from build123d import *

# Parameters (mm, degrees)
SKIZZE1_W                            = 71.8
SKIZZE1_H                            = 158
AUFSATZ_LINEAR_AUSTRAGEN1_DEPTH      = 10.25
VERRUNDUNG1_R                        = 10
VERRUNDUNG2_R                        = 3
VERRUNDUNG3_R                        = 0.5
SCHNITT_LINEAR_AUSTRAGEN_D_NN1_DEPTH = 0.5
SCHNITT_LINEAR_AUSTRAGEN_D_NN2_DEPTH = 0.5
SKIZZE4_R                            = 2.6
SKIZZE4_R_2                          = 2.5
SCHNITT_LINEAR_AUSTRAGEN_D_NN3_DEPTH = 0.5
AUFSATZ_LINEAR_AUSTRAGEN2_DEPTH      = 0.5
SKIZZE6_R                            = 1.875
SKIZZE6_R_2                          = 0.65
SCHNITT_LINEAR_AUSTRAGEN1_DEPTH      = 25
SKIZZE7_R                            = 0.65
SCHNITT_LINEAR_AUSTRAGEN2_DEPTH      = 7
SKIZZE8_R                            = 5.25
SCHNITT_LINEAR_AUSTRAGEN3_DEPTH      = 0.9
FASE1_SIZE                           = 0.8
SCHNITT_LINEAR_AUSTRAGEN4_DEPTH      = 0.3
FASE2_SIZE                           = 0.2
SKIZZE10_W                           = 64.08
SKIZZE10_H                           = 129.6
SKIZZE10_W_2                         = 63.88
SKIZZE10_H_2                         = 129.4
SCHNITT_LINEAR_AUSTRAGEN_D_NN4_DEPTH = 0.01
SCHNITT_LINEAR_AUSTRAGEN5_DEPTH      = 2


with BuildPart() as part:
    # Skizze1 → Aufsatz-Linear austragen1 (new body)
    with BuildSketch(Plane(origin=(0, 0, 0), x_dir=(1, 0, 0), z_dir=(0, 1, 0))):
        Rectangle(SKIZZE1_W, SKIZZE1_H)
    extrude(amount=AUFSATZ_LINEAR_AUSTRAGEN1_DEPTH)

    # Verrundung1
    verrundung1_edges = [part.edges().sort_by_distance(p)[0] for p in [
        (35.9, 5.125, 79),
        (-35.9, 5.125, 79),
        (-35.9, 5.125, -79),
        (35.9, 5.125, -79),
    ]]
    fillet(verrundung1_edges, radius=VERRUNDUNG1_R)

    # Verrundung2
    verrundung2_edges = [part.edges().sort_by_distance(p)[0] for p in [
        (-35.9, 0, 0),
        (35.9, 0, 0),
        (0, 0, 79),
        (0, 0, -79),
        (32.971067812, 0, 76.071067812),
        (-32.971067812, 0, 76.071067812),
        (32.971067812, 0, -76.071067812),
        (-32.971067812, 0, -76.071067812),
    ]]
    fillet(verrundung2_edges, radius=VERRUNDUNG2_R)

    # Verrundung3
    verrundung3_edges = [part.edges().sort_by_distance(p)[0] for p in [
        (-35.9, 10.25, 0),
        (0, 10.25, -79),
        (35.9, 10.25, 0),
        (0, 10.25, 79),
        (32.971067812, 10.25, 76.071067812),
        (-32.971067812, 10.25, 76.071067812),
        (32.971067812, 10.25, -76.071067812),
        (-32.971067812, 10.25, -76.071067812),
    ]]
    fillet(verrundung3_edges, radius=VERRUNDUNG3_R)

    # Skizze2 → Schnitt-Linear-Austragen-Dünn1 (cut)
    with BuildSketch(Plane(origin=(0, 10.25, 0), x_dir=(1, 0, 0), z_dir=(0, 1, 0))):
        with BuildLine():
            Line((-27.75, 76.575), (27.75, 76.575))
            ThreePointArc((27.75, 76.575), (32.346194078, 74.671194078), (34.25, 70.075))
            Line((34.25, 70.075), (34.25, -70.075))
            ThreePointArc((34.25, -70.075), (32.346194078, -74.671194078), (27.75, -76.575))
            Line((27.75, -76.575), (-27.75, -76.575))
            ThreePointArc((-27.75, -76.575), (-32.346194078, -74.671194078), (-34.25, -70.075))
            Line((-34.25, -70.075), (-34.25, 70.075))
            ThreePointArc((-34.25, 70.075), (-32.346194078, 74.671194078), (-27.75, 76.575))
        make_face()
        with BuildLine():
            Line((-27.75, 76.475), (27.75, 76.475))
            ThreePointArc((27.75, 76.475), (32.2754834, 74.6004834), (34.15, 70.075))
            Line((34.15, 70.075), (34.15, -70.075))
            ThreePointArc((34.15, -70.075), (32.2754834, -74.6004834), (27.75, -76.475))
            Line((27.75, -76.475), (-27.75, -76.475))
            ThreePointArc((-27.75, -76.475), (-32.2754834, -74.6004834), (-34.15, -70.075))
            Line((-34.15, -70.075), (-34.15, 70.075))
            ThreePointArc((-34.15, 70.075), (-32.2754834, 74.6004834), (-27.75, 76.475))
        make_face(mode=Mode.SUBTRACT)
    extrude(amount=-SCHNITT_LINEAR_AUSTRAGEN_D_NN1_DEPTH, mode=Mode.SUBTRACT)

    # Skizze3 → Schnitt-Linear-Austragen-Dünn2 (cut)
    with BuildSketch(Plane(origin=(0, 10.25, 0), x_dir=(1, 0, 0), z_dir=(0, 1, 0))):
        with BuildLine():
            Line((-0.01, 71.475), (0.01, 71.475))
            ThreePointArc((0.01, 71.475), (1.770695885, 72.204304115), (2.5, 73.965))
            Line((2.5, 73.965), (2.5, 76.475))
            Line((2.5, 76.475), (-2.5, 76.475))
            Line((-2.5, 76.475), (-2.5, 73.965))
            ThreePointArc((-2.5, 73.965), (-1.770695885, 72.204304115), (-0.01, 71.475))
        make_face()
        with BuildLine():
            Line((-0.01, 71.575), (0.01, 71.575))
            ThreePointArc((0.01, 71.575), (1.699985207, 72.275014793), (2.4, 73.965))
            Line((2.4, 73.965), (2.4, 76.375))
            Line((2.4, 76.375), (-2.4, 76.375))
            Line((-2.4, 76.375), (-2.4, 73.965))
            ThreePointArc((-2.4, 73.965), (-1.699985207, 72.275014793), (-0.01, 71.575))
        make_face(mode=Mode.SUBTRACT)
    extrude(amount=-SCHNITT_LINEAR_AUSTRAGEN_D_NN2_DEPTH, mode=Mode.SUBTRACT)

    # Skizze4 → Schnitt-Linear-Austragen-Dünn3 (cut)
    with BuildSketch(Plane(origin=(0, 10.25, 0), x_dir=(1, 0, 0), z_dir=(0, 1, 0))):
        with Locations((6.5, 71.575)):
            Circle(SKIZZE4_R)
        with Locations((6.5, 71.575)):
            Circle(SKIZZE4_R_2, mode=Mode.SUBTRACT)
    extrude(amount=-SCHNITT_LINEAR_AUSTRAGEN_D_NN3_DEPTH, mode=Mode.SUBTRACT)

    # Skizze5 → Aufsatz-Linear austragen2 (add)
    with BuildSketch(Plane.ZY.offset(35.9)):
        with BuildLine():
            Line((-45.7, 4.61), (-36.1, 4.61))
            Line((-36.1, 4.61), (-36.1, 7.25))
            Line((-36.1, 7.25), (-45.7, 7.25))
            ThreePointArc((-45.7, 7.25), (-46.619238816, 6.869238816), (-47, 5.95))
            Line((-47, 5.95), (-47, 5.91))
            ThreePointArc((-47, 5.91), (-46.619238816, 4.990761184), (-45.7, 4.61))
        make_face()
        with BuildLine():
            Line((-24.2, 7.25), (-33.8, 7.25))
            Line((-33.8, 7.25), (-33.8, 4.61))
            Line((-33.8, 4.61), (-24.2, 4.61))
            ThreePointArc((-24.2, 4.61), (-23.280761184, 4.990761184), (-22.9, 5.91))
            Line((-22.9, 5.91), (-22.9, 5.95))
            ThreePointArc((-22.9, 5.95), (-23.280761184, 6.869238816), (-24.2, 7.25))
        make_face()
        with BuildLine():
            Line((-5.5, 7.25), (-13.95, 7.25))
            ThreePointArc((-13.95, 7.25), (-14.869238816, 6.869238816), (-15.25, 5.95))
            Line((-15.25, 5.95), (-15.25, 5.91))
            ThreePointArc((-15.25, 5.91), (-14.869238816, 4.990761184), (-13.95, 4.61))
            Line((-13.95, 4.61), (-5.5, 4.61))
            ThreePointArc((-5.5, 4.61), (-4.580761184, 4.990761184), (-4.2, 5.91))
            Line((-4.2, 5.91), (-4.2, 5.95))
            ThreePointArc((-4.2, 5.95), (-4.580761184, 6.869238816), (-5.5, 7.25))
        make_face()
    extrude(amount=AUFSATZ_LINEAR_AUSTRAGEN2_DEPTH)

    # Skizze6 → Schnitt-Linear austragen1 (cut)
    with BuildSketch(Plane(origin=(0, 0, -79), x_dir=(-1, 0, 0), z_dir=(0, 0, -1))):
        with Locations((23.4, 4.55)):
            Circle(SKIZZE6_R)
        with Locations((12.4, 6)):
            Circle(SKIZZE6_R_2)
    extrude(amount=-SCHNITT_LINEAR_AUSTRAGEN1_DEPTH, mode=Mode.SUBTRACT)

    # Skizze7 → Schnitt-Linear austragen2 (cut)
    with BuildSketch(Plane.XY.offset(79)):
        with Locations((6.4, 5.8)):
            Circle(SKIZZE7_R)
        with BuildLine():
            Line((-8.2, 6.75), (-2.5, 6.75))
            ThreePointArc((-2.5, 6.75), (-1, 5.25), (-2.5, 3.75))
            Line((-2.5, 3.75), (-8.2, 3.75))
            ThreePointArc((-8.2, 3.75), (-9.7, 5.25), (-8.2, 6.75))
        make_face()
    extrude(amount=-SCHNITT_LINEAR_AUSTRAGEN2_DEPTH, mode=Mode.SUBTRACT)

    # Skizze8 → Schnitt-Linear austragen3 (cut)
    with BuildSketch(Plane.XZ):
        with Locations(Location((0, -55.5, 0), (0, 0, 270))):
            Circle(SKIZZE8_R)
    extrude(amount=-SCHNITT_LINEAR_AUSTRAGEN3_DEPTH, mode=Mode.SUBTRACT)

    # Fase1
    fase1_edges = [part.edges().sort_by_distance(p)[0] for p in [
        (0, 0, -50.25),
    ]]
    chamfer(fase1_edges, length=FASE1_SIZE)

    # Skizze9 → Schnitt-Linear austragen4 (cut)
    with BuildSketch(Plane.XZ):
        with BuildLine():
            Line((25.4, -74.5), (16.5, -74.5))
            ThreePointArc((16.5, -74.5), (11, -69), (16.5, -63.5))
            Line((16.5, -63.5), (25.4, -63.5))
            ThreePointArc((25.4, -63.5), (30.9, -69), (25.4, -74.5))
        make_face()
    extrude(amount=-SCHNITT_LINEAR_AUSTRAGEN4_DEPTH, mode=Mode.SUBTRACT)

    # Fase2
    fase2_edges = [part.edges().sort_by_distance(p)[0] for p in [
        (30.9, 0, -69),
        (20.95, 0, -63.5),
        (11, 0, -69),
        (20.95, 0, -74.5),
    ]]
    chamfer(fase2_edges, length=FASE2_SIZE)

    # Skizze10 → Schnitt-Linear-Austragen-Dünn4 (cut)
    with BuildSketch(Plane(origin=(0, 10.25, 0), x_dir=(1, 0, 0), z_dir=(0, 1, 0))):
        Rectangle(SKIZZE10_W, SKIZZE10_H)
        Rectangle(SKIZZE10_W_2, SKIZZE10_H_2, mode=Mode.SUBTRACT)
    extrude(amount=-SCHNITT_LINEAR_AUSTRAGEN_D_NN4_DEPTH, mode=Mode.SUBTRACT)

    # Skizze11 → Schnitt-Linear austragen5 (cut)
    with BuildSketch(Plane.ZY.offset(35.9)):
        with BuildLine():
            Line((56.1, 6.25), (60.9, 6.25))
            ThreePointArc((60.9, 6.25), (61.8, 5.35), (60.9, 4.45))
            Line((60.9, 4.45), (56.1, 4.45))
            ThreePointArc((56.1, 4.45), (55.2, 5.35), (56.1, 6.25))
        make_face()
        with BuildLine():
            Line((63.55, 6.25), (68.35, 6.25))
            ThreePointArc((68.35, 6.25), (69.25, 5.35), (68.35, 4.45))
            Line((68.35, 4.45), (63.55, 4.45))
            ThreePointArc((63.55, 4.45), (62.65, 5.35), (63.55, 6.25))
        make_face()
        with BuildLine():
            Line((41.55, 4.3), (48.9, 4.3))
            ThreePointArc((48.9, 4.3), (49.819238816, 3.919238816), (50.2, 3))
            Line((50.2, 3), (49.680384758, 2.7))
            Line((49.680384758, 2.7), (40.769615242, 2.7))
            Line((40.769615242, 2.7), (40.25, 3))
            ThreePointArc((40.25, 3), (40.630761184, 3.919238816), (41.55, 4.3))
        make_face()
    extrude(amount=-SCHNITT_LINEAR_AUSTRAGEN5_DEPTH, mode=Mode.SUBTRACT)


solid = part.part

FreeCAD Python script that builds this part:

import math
import FreeCAD as App
import Part
import Sketcher

V = App.Vector
Q = App.Units.Quantity


def edges_at(feature, points):
    """Names of the edges that pass closest to the given points."""
    edges = feature.Shape.Edges
    near = lambda p: min(range(len(edges)), key=lambda i: edges[i].distToShape(Part.Vertex(*p))[0])
    return sorted({f"Edge{near(p) + 1}" for p in points})


def add_polygon(sketch, points):
    """Adds a closed chain of lines whose ends are joined by coincident constraints."""
    first, n = sketch.GeometryCount, len(points)
    for a, b in zip(points, points[1:] + points[:1]):
        sketch.addGeometry(Part.LineSegment(App.Vector(*a, 0), App.Vector(*b, 0)), False)
    for i in range(n):
        sketch.addConstraint(Sketcher.Constraint("Coincident", first + i, 2, first + (i + 1) % n, 1))

doc = App.newDocument("Part")
body = doc.addObject("PartDesign::Body", "Body")

# Sketch on XZ plane
sketch1 = doc.addObject("Sketcher::SketchObject", "Sketch")
body.addObject(sketch1)
sketch1.AttachmentSupport = (doc.XZ_Plane, [""])
sketch1.MapMode = "FlatFace"
add_polygon(sketch1, [(-36, -79), (-36, 79), (36, 79), (36, -79)])  # lines 0-3
sketch1.addConstraint(Sketcher.Constraint("Vertical", 0))
sketch1.addConstraint(Sketcher.Constraint("Horizontal", 1))
sketch1.addConstraint(Sketcher.Constraint("Vertical", 2))
sketch1.addConstraint(Sketcher.Constraint("Horizontal", 3))
sketch1.addConstraint(Sketcher.Constraint("Symmetric", 0, 2, 2, 2, -1, 1))
sketch1.addConstraint(Sketcher.Constraint("DistanceY", 0, 1, 0, 2, 158.0))
sketch1.addConstraint(Sketcher.Constraint("DistanceX", 1, 1, 1, 2, 71.8))
pad1 = doc.addObject("PartDesign::Pad", "Pad")
body.addObject(pad1)
pad1.Profile = sketch1
pad1.Length = 10.25
pad1.Reversed = True
doc.recompute()

fillet = doc.addObject("PartDesign::Fillet", "Fillet")
body.addObject(fillet)
fillet.Base = (pad1, edges_at(pad1, [
    (35.9, 5.125, 79),
    (-35.9, 5.125, 79),
    (-35.9, 5.125, -79),
    (35.9, 5.125, -79),
]))
fillet.Radius = 10
doc.recompute()

fillet2 = doc.addObject("PartDesign::Fillet", "Fillet001")
body.addObject(fillet2)
fillet2.Base = (fillet, edges_at(fillet, [
    (-35.9, 0, 0),
    (35.9, 0, 0),
    (0, 0, 79),
    (0, 0, -79),
    (32.971, 0, 76.071),
    (-32.971, 0, 76.071),
    (32.971, 0, -76.071),
    (-32.971, 0, -76.071),
]))
fillet2.Radius = 3
doc.recompute()

fillet3 = doc.addObject("PartDesign::Fillet", "Fillet002")
body.addObject(fillet3)
fillet3.Base = (fillet2, edges_at(fillet2, [
    (-35.9, 10.25, 0),
    (0, 10.25, -79),
    (35.9, 10.25, 0),
    (0, 10.25, 79),
    (32.971, 10.25, 76.071),
    (-32.971, 10.25, 76.071),
    (32.971, 10.25, -76.071),
    (-32.971, 10.25, -76.071),
]))
fillet3.Radius = 0.5

# Sketch on XZ plane
sketch2 = doc.addObject("Sketcher::SketchObject", "Sketch001")
body.addObject(sketch2)
sketch2.AttachmentSupport = (doc.XZ_Plane, [""])
sketch2.MapMode = "FlatFace"
sketch2.AttachmentOffset = App.Placement(V(0, 0, -10.25), App.Rotation())
sketch2.addGeometry(Part.LineSegment(V(28, -77, 0), V(-28, -77, 0)), False)
sketch2.addGeometry(Part.ArcOfCircle(Part.Circle(V(-28, -70, 0), V(0, 0, 1), 6), math.radians(180), math.radians(270)), False)
sketch2.addGeometry(Part.LineSegment(V(-34, -70, 0), V(-34, 70, 0)), False)
sketch2.addGeometry(Part.ArcOfCircle(Part.Circle(V(-28, 70, 0), V(0, 0, 1), 6), math.radians(90), math.radians(180)), False)
sketch2.addGeometry(Part.LineSegment(V(-28, 77, 0), V(28, 77, 0)), False)
sketch2.addGeometry(Part.ArcOfCircle(Part.Circle(V(28, 70, 0), V(0, 0, 1), 6), math.radians(0), math.radians(90)), False)
sketch2.addGeometry(Part.LineSegment(V(34, 70, 0), V(34, -70, 0)), False)
sketch2.addGeometry(Part.ArcOfCircle(Part.Circle(V(28, -70, 0), V(0, 0, 1), 6), math.radians(-90), math.radians(0)), False)
sketch2.addGeometry(Part.LineSegment(V(-28, -76, 0), V(28, -76, 0)), False)
sketch2.addGeometry(Part.ArcOfCircle(Part.Circle(V(28, -70, 0), V(0, 0, 1), 6), math.radians(-90), math.radians(0)), False)
sketch2.addGeometry(Part.LineSegment(V(34, -70, 0), V(34, 70, 0)), False)
sketch2.addGeometry(Part.ArcOfCircle(Part.Circle(V(28, 70, 0), V(0, 0, 1), 6), math.radians(0), math.radians(90)), False)
sketch2.addGeometry(Part.LineSegment(V(28, 76, 0), V(-28, 76, 0)), False)
sketch2.addGeometry(Part.ArcOfCircle(Part.Circle(V(-28, 70, 0), V(0, 0, 1), 6), math.radians(90), math.radians(180)), False)
sketch2.addGeometry(Part.LineSegment(V(-34, 70, 0), V(-34, -70, 0)), False)
sketch2.addGeometry(Part.ArcOfCircle(Part.Circle(V(-28, -70, 0), V(0, 0, 1), 6), math.radians(180), math.radians(270)), False)
sketch2.addConstraint(Sketcher.Constraint("Tangent", 0, 2, 1, 2))
sketch2.addConstraint(Sketcher.Constraint("Tangent", 1, 1, 2, 1))
sketch2.addConstraint(Sketcher.Constraint("Tangent", 2, 2, 3, 2))
sketch2.addConstraint(Sketcher.Constraint("Tangent", 3, 1, 4, 1))
sketch2.addConstraint(Sketcher.Constraint("Tangent", 4, 2, 5, 2))
sketch2.addConstraint(Sketcher.Constraint("Tangent", 5, 1, 6, 1))
sketch2.addConstraint(Sketcher.Constraint("Tangent", 6, 2, 7, 2))
sketch2.addConstraint(Sketcher.Constraint("Tangent", 7, 1, 0, 1))
sketch2.addConstraint(Sketcher.Constraint("Tangent", 8, 2, 9, 1))
sketch2.addConstraint(Sketcher.Constraint("Tangent", 9, 2, 10, 1))
sketch2.addConstraint(Sketcher.Constraint("Tangent", 10, 2, 11, 1))
sketch2.addConstraint(Sketcher.Constraint("Tangent", 11, 2, 12, 1))
sketch2.addConstraint(Sketcher.Constraint("Tangent", 12, 2, 13, 1))
sketch2.addConstraint(Sketcher.Constraint("Tangent", 13, 2, 14, 1))
sketch2.addConstraint(Sketcher.Constraint("Tangent", 14, 2, 15, 1))
sketch2.addConstraint(Sketcher.Constraint("Tangent", 15, 2, 8, 1))
sketch2.addConstraint(Sketcher.Constraint("Horizontal", 0))
sketch2.addConstraint(Sketcher.Constraint("Vertical", 2))
sketch2.addConstraint(Sketcher.Constraint("Horizontal", 4))
sketch2.addConstraint(Sketcher.Constraint("Vertical", 6))
sketch2.addConstraint(Sketcher.Constraint("Horizontal", 8))
sketch2.addConstraint(Sketcher.Constraint("Vertical", 10))
sketch2.addConstraint(Sketcher.Constraint("Horizontal", 12))
sketch2.addConstraint(Sketcher.Constraint("Vertical", 14))
sketch2.addConstraint(Sketcher.Constraint("Coincident", 9, 3, 7, 3))
sketch2.addConstraint(Sketcher.Constraint("Coincident", 11, 3, 5, 3))
sketch2.addConstraint(Sketcher.Constraint("Coincident", 13, 3, 3, 3))
sketch2.addConstraint(Sketcher.Constraint("Equal", 1, 3))
sketch2.addConstraint(Sketcher.Constraint("Equal", 3, 5))
sketch2.addConstraint(Sketcher.Constraint("Equal", 5, 7))
sketch2.addConstraint(Sketcher.Constraint("Equal", 13, 15))
sketch2.addConstraint(Sketcher.Constraint("Symmetric", 1, 3, 5, 3, -1, 1))
sketch2.addConstraint(Sketcher.Constraint("Radius", 1, 6.5))
sketch2.addConstraint(Sketcher.Constraint("Radius", 9, 6.4))
sketch2.addConstraint(Sketcher.Constraint("DistanceX", 0, 2, 0, 1, 55.5))
sketch2.addConstraint(Sketcher.Constraint("DistanceY", 2, 1, 2, 2, 140.15))
pocket1 = doc.addObject("PartDesign::Pocket", "Pocket")
body.addObject(pocket1)
pocket1.Profile = sketch2
pocket1.Length = 0.5
pocket1.Reversed = True

# Sketch on XZ plane
sketch3 = doc.addObject("Sketcher::SketchObject", "Sketch002")
body.addObject(sketch3)
sketch3.AttachmentSupport = (doc.XZ_Plane, [""])
sketch3.MapMode = "FlatFace"
sketch3.AttachmentOffset = App.Placement(V(0, 0, -10.25), App.Rotation())
sketch3.addGeometry(Part.LineSegment(V(-0.01, -71.475, 0), V(0.01, -71.475, 0)), False)
sketch3.addGeometry(Part.ArcOfCircle(Part.Circle(V(0.01, -73.965, 0), V(0, 0, 1), 2.49), math.radians(0), math.radians(90)), False)
sketch3.addGeometry(Part.LineSegment(V(2.5, -73.965, 0), V(2.5, -76.475, 0)), False)
sketch3.addGeometry(Part.LineSegment(V(2.5, -76.475, 0), V(-2.5, -76.475, 0)), False)
sketch3.addGeometry(Part.LineSegment(V(-2.5, -76.475, 0), V(-2.5, -73.965, 0)), False)
sketch3.addGeometry(Part.ArcOfCircle(Part.Circle(V(-0.01, -73.965, 0), V(0, 0, 1), 2.49), math.radians(90), math.radians(180)), False)
sketch3.addGeometry(Part.LineSegment(V(0.01, -71.575, 0), V(-0.01, -71.575, 0)), False)
sketch3.addGeometry(Part.ArcOfCircle(Part.Circle(V(-0.01, -73.965, 0), V(0, 0, 1), 2.39), math.radians(90), math.radians(180)), False)
sketch3.addGeometry(Part.LineSegment(V(-2.4, -73.965, 0), V(-2.4, -76.375, 0)), False)
sketch3.addGeometry(Part.LineSegment(V(-2.4, -76.375, 0), V(2.4, -76.375, 0)), False)
sketch3.addGeometry(Part.LineSegment(V(2.4, -76.375, 0), V(2.4, -73.965, 0)), False)
sketch3.addGeometry(Part.ArcOfCircle(Part.Circle(V(0.01, -73.965, 0), V(0, 0, 1), 2.39), math.radians(0), math.radians(90)), False)
sketch3.addConstraint(Sketcher.Constraint("Tangent", 0, 2, 1, 2))
sketch3.addConstraint(Sketcher.Constraint("Tangent", 1, 1, 2, 1))
sketch3.addConstraint(Sketcher.Constraint("Coincident", 2, 2, 3, 1))
sketch3.addConstraint(Sketcher.Constraint("Coincident", 3, 2, 4, 1))
sketch3.addConstraint(Sketcher.Constraint("Tangent", 4, 2, 5, 2))
sketch3.addConstraint(Sketcher.Constraint("Tangent", 5, 1, 0, 1))
sketch3.addConstraint(Sketcher.Constraint("Tangent", 6, 2, 7, 1))
sketch3.addConstraint(Sketcher.Constraint("Tangent", 7, 2, 8, 1))
sketch3.addConstraint(Sketcher.Constraint("Coincident", 8, 2, 9, 1))
sketch3.addConstraint(Sketcher.Constraint("Coincident", 9, 2, 10, 1))
sketch3.addConstraint(Sketcher.Constraint("Tangent", 10, 2, 11, 1))
sketch3.addConstraint(Sketcher.Constraint("Tangent", 11, 2, 6, 1))
sketch3.addConstraint(Sketcher.Constraint("Horizontal", 0))
sketch3.addConstraint(Sketcher.Constraint("Vertical", 2))
sketch3.addConstraint(Sketcher.Constraint("Horizontal", 3))
sketch3.addConstraint(Sketcher.Constraint("Vertical", 4))
sketch3.addConstraint(Sketcher.Constraint("Horizontal", 6))
sketch3.addConstraint(Sketcher.Constraint("Vertical", 8))
sketch3.addConstraint(Sketcher.Constraint("Horizontal", 9))
sketch3.addConstraint(Sketcher.Constraint("Vertical", 10))
sketch3.addConstraint(Sketcher.Constraint("Coincident", 7, 3, 5, 3))
sketch3.addConstraint(Sketcher.Constraint("Coincident", 11, 3, 1, 3))
sketch3.addConstraint(Sketcher.Constraint("Equal", 1, 5))
sketch3.addConstraint(Sketcher.Constraint("DistanceX", 3, 2, 3, 1, 5.0))
sketch3.addConstraint(Sketcher.Constraint("Radius", 1, 2.49))
sketch3.addConstraint(Sketcher.Constraint("Radius", 7, 2.39))
sketch3.addConstraint(Sketcher.Constraint("DistanceY", 2, 2, 2, 1, 2.51))
sketch3.addConstraint(Sketcher.Constraint("DistanceY", 8, 2, 8, 1, 2.41))
sketch3.addConstraint(Sketcher.Constraint("DistanceX", -1, 1, 1, 1, 2.5))
sketch3.addConstraint(Sketcher.Constraint("DistanceY", 1, 3, -1, 1, 73.965))
pocket2 = doc.addObject("PartDesign::Pocket", "Pocket001")
body.addObject(pocket2)
pocket2.Profile = sketch3
pocket2.Length = 0.5
pocket2.Reversed = True

# Sketch on XZ plane
sketch4 = doc.addObject("Sketcher::SketchObject", "Sketch003")
body.addObject(sketch4)
sketch4.AttachmentSupport = (doc.XZ_Plane, [""])
sketch4.MapMode = "FlatFace"
sketch4.AttachmentOffset = App.Placement(V(0, 0, -10.25), App.Rotation())
sketch4.addGeometry(Part.Circle(V(6.5, -71.6, 0), V(0, 0, 1), 2.6), False)
sketch4.addGeometry(Part.Circle(V(6.5, -71.6, 0), V(0, 0, 1), 2.5), False)
sketch4.addConstraint(Sketcher.Constraint("Coincident", 1, 3, 0, 3))
sketch4.addConstraint(Sketcher.Constraint("Diameter", 1, 5.0))
sketch4.addConstraint(Sketcher.Constraint("Diameter", 0, 5.2))
sketch4.addConstraint(Sketcher.Constraint("DistanceX", -1, 1, 0, 3, 6.5))
sketch4.addConstraint(Sketcher.Constraint("DistanceY", 0, 3, -1, 1, 71.575))
pocket3 = doc.addObject("PartDesign::Pocket", "Pocket002")
body.addObject(pocket3)
pocket3.Profile = sketch4
pocket3.Length = 0.5
pocket3.Reversed = True

# Sketch on YZ plane
sketch5 = doc.addObject("Sketcher::SketchObject", "Sketch004")
body.addObject(sketch5)
sketch5.AttachmentSupport = (doc.YZ_Plane, [""])
sketch5.MapMode = "FlatFace"
sketch5.AttachmentOffset = App.Placement(V(0, 0, -35.9), App.Rotation())
sketch5.addGeometry(Part.LineSegment(V(4.61, -45.7, 0), V(4.61, -36.1, 0)), False)
sketch5.addGeometry(Part.LineSegment(V(4.61, -36.1, 0), V(7.25, -36.1, 0)), False)
sketch5.addGeometry(Part.LineSegment(V(7.25, -36.1, 0), V(7.25, -45.7, 0)), False)
sketch5.addGeometry(Part.ArcOfCircle(Part.Circle(V(5.95, -45.7, 0), V(0, 0, 1), 1.3), math.radians(-90), math.radians(0)), False)
sketch5.addGeometry(Part.LineSegment(V(5.95, -47, 0), V(5.91, -47, 0)), False)
sketch5.addGeometry(Part.ArcOfCircle(Part.Circle(V(5.91, -45.7, 0), V(0, 0, 1), 1.3), math.radians(180), math.radians(270)), False)
sketch5.addGeometry(Part.LineSegment(V(7.25, -24.2, 0), V(7.25, -33.8, 0)), False)
sketch5.addGeometry(Part.LineSegment(V(7.25, -33.8, 0), V(4.61, -33.8, 0)), False)
sketch5.addGeometry(Part.LineSegment(V(4.61, -33.8, 0), V(4.61, -24.2, 0)), False)
sketch5.addGeometry(Part.ArcOfCircle(Part.Circle(V(5.91, -24.2, 0), V(0, 0, 1), 1.3), math.radians(90), math.radians(180)), False)
sketch5.addGeometry(Part.LineSegment(V(5.91, -22.9, 0), V(5.95, -22.9, 0)), False)
sketch5.addGeometry(Part.ArcOfCircle(Part.Circle(V(5.95, -24.2, 0), V(0, 0, 1), 1.3), math.radians(0), math.radians(90)), False)
sketch5.addGeometry(Part.LineSegment(V(7.25, -5.5, 0), V(7.25, -13.95, 0)), False)
sketch5.addGeometry(Part.ArcOfCircle(Part.Circle(V(5.95, -13.95, 0), V(0, 0, 1), 1.3), math.radians(-90), math.radians(0)), False)
sketch5.addGeometry(Part.LineSegment(V(5.95, -15.25, 0), V(5.91, -15.25, 0)), False)
sketch5.addGeometry(Part.ArcOfCircle(Part.Circle(V(5.91, -13.95, 0), V(0, 0, 1), 1.3), math.radians(180), math.radians(270)), False)
sketch5.addGeometry(Part.LineSegment(V(4.61, -13.95, 0), V(4.61, -5.5, 0)), False)
sketch5.addGeometry(Part.ArcOfCircle(Part.Circle(V(5.91, -5.5, 0), V(0, 0, 1), 1.3), math.radians(90), math.radians(180)), False)
sketch5.addGeometry(Part.LineSegment(V(5.91, -4.2, 0), V(5.95, -4.2, 0)), False)
sketch5.addGeometry(Part.ArcOfCircle(Part.Circle(V(5.95, -5.5, 0), V(0, 0, 1), 1.3), math.radians(0), math.radians(90)), False)
sketch5.addConstraint(Sketcher.Constraint("Coincident", 0, 2, 1, 1))
sketch5.addConstraint(Sketcher.Constraint("Coincident", 1, 2, 2, 1))
sketch5.addConstraint(Sketcher.Constraint("Tangent", 2, 2, 3, 2))
sketch5.addConstraint(Sketcher.Constraint("Tangent", 3, 1, 4, 1))
sketch5.addConstraint(Sketcher.Constraint("Tangent", 4, 2, 5, 2))
sketch5.addConstraint(Sketcher.Constraint("Tangent", 5, 1, 0, 1))
sketch5.addConstraint(Sketcher.Constraint("Coincident", 6, 2, 7, 1))
sketch5.addConstraint(Sketcher.Constraint("Coincident", 7, 2, 8, 1))
sketch5.addConstraint(Sketcher.Constraint("Tangent", 8, 2, 9, 2))
sketch5.addConstraint(Sketcher.Constraint("Tangent", 9, 1, 10, 1))
sketch5.addConstraint(Sketcher.Constraint("Tangent", 10, 2, 11, 2))
sketch5.addConstraint(Sketcher.Constraint("Tangent", 11, 1, 6, 1))
sketch5.addConstraint(Sketcher.Constraint("Tangent", 12, 2, 13, 2))
sketch5.addConstraint(Sketcher.Constraint("Tangent", 13, 1, 14, 1))
sketch5.addConstraint(Sketcher.Constraint("Tangent", 14, 2, 15, 2))
sketch5.addConstraint(Sketcher.Constraint("Tangent", 15, 1, 16, 1))
sketch5.addConstraint(Sketcher.Constraint("Tangent", 16, 2, 17, 2))
sketch5.addConstraint(Sketcher.Constraint("Tangent", 17, 1, 18, 1))
sketch5.addConstraint(Sketcher.Constraint("Tangent", 18, 2, 19, 2))
sketch5.addConstraint(Sketcher.Constraint("Tangent", 19, 1, 12, 1))
sketch5.addConstraint(Sketcher.Constraint("Vertical", 0))
sketch5.addConstraint(Sketcher.Constraint("Horizontal", 1))
sketch5.addConstraint(Sketcher.Constraint("Vertical", 2))
sketch5.addConstraint(Sketcher.Constraint("Horizontal", 4))
sketch5.addConstraint(Sketcher.Constraint("Vertical", 6))
sketch5.addConstraint(Sketcher.Constraint("Horizontal", 7))
sketch5.addConstraint(Sketcher.Constraint("Vertical", 8))
sketch5.addConstraint(Sketcher.Constraint("Horizontal", 10))
sketch5.addConstraint(Sketcher.Constraint("Vertical", 12))
sketch5.addConstraint(Sketcher.Constraint("Horizontal", 14))
sketch5.addConstraint(Sketcher.Constraint("Vertical", 16))
sketch5.addConstraint(Sketcher.Constraint("Horizontal", 18))
sketch5.addConstraint(Sketcher.Constraint("Equal", 3, 5))
sketch5.addConstraint(Sketcher.Constraint("Equal", 5, 9))
sketch5.addConstraint(Sketcher.Constraint("Equal", 9, 11))
sketch5.addConstraint(Sketcher.Constraint("Equal", 11, 13))
sketch5.addConstraint(Sketcher.Constraint("Equal", 13, 15))
sketch5.addConstraint(Sketcher.Constraint("Equal", 15, 17))
sketch5.addConstraint(Sketcher.Constraint("Equal", 17, 19))
sketch5.addConstraint(Sketcher.Constraint("Vertical", 5, 3, 9, 3))
sketch5.addConstraint(Sketcher.Constraint("Vertical", 3, 3, 11, 3))
sketch5.addConstraint(Sketcher.Constraint("Vertical", 11, 3, 13, 3))
sketch5.addConstraint(Sketcher.Constraint("Vertical", 9, 3, 15, 3))
sketch5.addConstraint(Sketcher.Constraint("Equal", 2, 6))
sketch5.addConstraint(Sketcher.Constraint("Radius", 3, 1.3))
sketch5.addConstraint(Sketcher.Constraint("DistanceY", 0, 1, 0, 2, 9.6))
sketch5.addConstraint(Sketcher.Constraint("DistanceY", 3, 1, -1, 1, 47.0))
sketch5.addConstraint(Sketcher.Constraint("DistanceX", 1, 1, 1, 2, 2.64))
sketch5.addConstraint(Sketcher.Constraint("DistanceY", 12, 2, 12, 1, 8.45))
sketch5.addConstraint(Sketcher.Constraint("DistanceY", 9, 3, -1, 1, 24.2))
sketch5.addConstraint(Sketcher.Constraint("DistanceY", 17, 3, -1, 1, 5.5))
sketch5.addConstraint(Sketcher.Constraint("DistanceX", -1, 1, 3, 3, 5.95))
pad2 = doc.addObject("PartDesign::Pad", "Pad001")
body.addObject(pad2)
pad2.Profile = sketch5
pad2.Length = 0.5
pad2.Reversed = True

# Sketch on XY plane
sketch6 = doc.addObject("Sketcher::SketchObject", "Sketch005")
body.addObject(sketch6)
sketch6.AttachmentSupport = (doc.XY_Plane, [""])
sketch6.MapMode = "FlatFace"
sketch6.AttachmentOffset = App.Placement(V(0, 0, -79), App.Rotation())
sketch6.addGeometry(Part.Circle(V(-23.4, 4.5, 0), V(0, 0, 1), 1.9), False)
sketch6.addGeometry(Part.Circle(V(-12.4, 6, 0), V(0, 0, 1), 0.7), False)
sketch6.addConstraint(Sketcher.Constraint("Diameter", 1, 1.3))
sketch6.addConstraint(Sketcher.Constraint("Diameter", 0, 3.75))
sketch6.addConstraint(Sketcher.Constraint("DistanceY", -1, 1, 1, 3, 6.0))
sketch6.addConstraint(Sketcher.Constraint("DistanceX", 0, 3, 1, 3, 11.0))
sketch6.addConstraint(Sketcher.Constraint("DistanceX", 0, 3, -1, 1, 23.4))
sketch6.addConstraint(Sketcher.Constraint("DistanceY", -1, 1, 0, 3, 4.55))
pocket4 = doc.addObject("PartDesign::Pocket", "Pocket003")
body.addObject(pocket4)
pocket4.Profile = sketch6
pocket4.Length = 25
pocket4.Reversed = True

# Sketch on XY plane
sketch7 = doc.addObject("Sketcher::SketchObject", "Sketch006")
body.addObject(sketch7)
sketch7.AttachmentSupport = (doc.XY_Plane, [""])
sketch7.MapMode = "FlatFace"
sketch7.AttachmentOffset = App.Placement(V(0, 0, 79), App.Rotation())
sketch7.addGeometry(Part.Circle(V(6.4, 5.8, 0), V(0, 0, 1), 0.7), False)
sketch7.addGeometry(Part.LineSegment(V(-2.5, 6.8, 0), V(-8.2, 6.8, 0)), False)
sketch7.addGeometry(Part.ArcOfCircle(Part.Circle(V(-8.2, 5.2, 0), V(0, 0, 1), 1.5), math.radians(90), math.radians(270)), False)
sketch7.addGeometry(Part.LineSegment(V(-8.2, 3.8, 0), V(-2.5, 3.8, 0)), False)
sketch7.addGeometry(Part.ArcOfCircle(Part.Circle(V(-2.5, 5.2, 0), V(0, 0, 1), 1.5), math.radians(-90), math.radians(90)), False)
sketch7.addConstraint(Sketcher.Constraint("Tangent", 1, 2, 2, 1))
sketch7.addConstraint(Sketcher.Constraint("Tangent", 2, 2, 3, 1))
sketch7.addConstraint(Sketcher.Constraint("Tangent", 3, 2, 4, 1))
sketch7.addConstraint(Sketcher.Constraint("Tangent", 4, 2, 1, 1))
sketch7.addConstraint(Sketcher.Constraint("Horizontal", 1))
sketch7.addConstraint(Sketcher.Constraint("Horizontal", 3))
sketch7.addConstraint(Sketcher.Constraint("Diameter", 0, 1.3))
sketch7.addConstraint(Sketcher.Constraint("Radius", 2, 1.5))
sketch7.addConstraint(Sketcher.Constraint("DistanceX", 1, 2, 1, 1, 5.7))
sketch7.addConstraint(Sketcher.Constraint("DistanceX", -1, 1, 0, 3, 6.4))
sketch7.addConstraint(Sketcher.Constraint("DistanceY", -1, 1, 0, 3, 5.8))
sketch7.addConstraint(Sketcher.Constraint("DistanceX", 2, 3, -1, 1, 8.2))
sketch7.addConstraint(Sketcher.Constraint("DistanceY", -1, 1, 2, 3, 5.25))
pocket5 = doc.addObject("PartDesign::Pocket", "Pocket004")
body.addObject(pocket5)
pocket5.Profile = sketch7
pocket5.Length = 7

# Sketch on XZ plane
sketch8 = doc.addObject("Sketcher::SketchObject", "Sketch007")
body.addObject(sketch8)
sketch8.AttachmentSupport = (doc.XZ_Plane, [""])
sketch8.MapMode = "FlatFace"
sketch8.addGeometry(Part.Circle(V(0, -56, 0), V(0, 0, 1), 5), False)
sketch8.addConstraint(Sketcher.Constraint("PointOnObject", 0, 3, -2))
sketch8.addConstraint(Sketcher.Constraint("Diameter", 0, 10.5))
sketch8.addConstraint(Sketcher.Constraint("DistanceY", 0, 3, -1, 1, 55.5))
pocket6 = doc.addObject("PartDesign::Pocket", "Pocket005")
body.addObject(pocket6)
pocket6.Profile = sketch8
pocket6.Length = 0.9
doc.recompute()

chamfer = doc.addObject("PartDesign::Chamfer", "Chamfer")
body.addObject(chamfer)
chamfer.Base = (pocket6, edges_at(pocket6, [(0, 0, -50.25)]))
chamfer.Size = 0.8

# Sketch on XZ plane
sketch9 = doc.addObject("Sketcher::SketchObject", "Sketch008")
body.addObject(sketch9)
sketch9.AttachmentSupport = (doc.XZ_Plane, [""])
sketch9.MapMode = "FlatFace"
sketch9.addGeometry(Part.LineSegment(V(16, -74, 0), V(25, -74, 0)), False)
sketch9.addGeometry(Part.ArcOfCircle(Part.Circle(V(25, -69, 0), V(0, 0, 1), 6), math.radians(-90), math.radians(90)), False)
sketch9.addGeometry(Part.LineSegment(V(25, -64, 0), V(16, -64, 0)), False)
sketch9.addGeometry(Part.ArcOfCircle(Part.Circle(V(16, -69, 0), V(0, 0, 1), 6), math.radians(90), math.radians(270)), False)
sketch9.addConstraint(Sketcher.Constraint("Tangent", 0, 2, 1, 1))
sketch9.addConstraint(Sketcher.Constraint("Tangent", 1, 2, 2, 1))
sketch9.addConstraint(Sketcher.Constraint("Tangent", 2, 2, 3, 1))
sketch9.addConstraint(Sketcher.Constraint("Tangent", 3, 2, 0, 1))
sketch9.addConstraint(Sketcher.Constraint("Horizontal", 0))
sketch9.addConstraint(Sketcher.Constraint("Horizontal", 2))
sketch9.addConstraint(Sketcher.Constraint("Radius", 1, 5.5))
sketch9.addConstraint(Sketcher.Constraint("DistanceX", 0, 1, 0, 2, 8.9))
sketch9.addConstraint(Sketcher.Constraint("DistanceY", 1, 3, -1, 1, 69.0))
sketch9.addConstraint(Sketcher.Constraint("DistanceX", -1, 1, 1, 3, 25.4))
pocket7 = doc.addObject("PartDesign::Pocket", "Pocket006")
body.addObject(pocket7)
pocket7.Profile = sketch9
pocket7.Length = 0.3
doc.recompute()

chamfer2 = doc.addObject("PartDesign::Chamfer", "Chamfer001")
body.addObject(chamfer2)
chamfer2.Base = (pocket7, edges_at(pocket7, [
    (30.9, 0, -69),
    (20.95, 0, -63.5),
    (11, 0, -69),
    (20.95, 0, -74.5),
]))
chamfer2.Size = 0.2

# Sketch on XZ plane
sketch10 = doc.addObject("Sketcher::SketchObject", "Sketch009")
body.addObject(sketch10)
sketch10.AttachmentSupport = (doc.XZ_Plane, [""])
sketch10.MapMode = "FlatFace"
sketch10.AttachmentOffset = App.Placement(V(0, 0, -10.25), App.Rotation())
add_polygon(sketch10, [(-32, -65), (-32, 65), (32, 65), (32, -65)])  # lines 0-3
add_polygon(sketch10, [(32, 65), (-32, 65), (-32, -65), (32, -65)])  # lines 4-7
sketch10.addConstraint(Sketcher.Constraint("Vertical", 0))
sketch10.addConstraint(Sketcher.Constraint("Horizontal", 1))
sketch10.addConstraint(Sketcher.Constraint("Vertical", 2))
sketch10.addConstraint(Sketcher.Constraint("Horizontal", 3))
sketch10.addConstraint(Sketcher.Constraint("Horizontal", 4))
sketch10.addConstraint(Sketcher.Constraint("Vertical", 5))
sketch10.addConstraint(Sketcher.Constraint("Horizontal", 6))
sketch10.addConstraint(Sketcher.Constraint("Vertical", 7))
sketch10.addConstraint(Sketcher.Constraint("Symmetric", 0, 2, 2, 2, -1, 1))
sketch10.addConstraint(Sketcher.Constraint("Symmetric", 4, 2, 6, 2, -1, 1))
sketch10.addConstraint(Sketcher.Constraint("DistanceY", 0, 1, 0, 2, 129.6))
sketch10.addConstraint(Sketcher.Constraint("DistanceY", 5, 2, 5, 1, 129.4))
sketch10.addConstraint(Sketcher.Constraint("DistanceX", 1, 1, 1, 2, 64.08))
sketch10.addConstraint(Sketcher.Constraint("DistanceX", 4, 2, 4, 1, 63.88))
pocket8 = doc.addObject("PartDesign::Pocket", "Pocket007")
body.addObject(pocket8)
pocket8.Profile = sketch10
pocket8.Length = 0.01
pocket8.Reversed = True

# Sketch on YZ plane
sketch11 = doc.addObject("Sketcher::SketchObject", "Sketch010")
body.addObject(sketch11)
sketch11.AttachmentSupport = (doc.YZ_Plane, [""])
sketch11.MapMode = "FlatFace"
sketch11.AttachmentOffset = App.Placement(V(0, 0, -35.9), App.Rotation())
sketch11.addGeometry(Part.LineSegment(V(6.2, 60.9, 0), V(6.2, 56.1, 0)), False)
sketch11.addGeometry(Part.ArcOfCircle(Part.Circle(V(5.3, 56.1, 0), V(0, 0, 1), 0.9), math.radians(180), math.radians(360)), False)
sketch11.addGeometry(Part.LineSegment(V(4.5, 56.1, 0), V(4.5, 60.9, 0)), False)
sketch11.addGeometry(Part.ArcOfCircle(Part.Circle(V(5.3, 60.9, 0), V(0, 0, 1), 0.9), math.radians(0), math.radians(180)), False)
sketch11.addGeometry(Part.LineSegment(V(6.2, 68.3, 0), V(6.2, 63.5, 0)), False)
sketch11.addGeometry(Part.ArcOfCircle(Part.Circle(V(5.3, 63.5, 0), V(0, 0, 1), 0.9), math.radians(180), math.radians(360)), False)
sketch11.addGeometry(Part.LineSegment(V(4.5, 63.5, 0), V(4.5, 68.3, 0)), False)
sketch11.addGeometry(Part.ArcOfCircle(Part.Circle(V(5.3, 68.3, 0), V(0, 0, 1), 0.9), math.radians(0), math.radians(180)), False)
sketch11.addGeometry(Part.LineSegment(V(4.3, 48.9, 0), V(4.3, 41.5, 0)), False)
sketch11.addGeometry(Part.ArcOfCircle(Part.Circle(V(3, 41.5, 0), V(0, 0, 1), 1.3), math.radians(-90), math.radians(0)), False)
sketch11.addGeometry(Part.LineSegment(V(3, 40.2, 0), V(2.7, 40.8, 0)), False)
sketch11.addGeometry(Part.LineSegment(V(2.7, 40.8, 0), V(2.7, 49.7, 0)), False)
sketch11.addGeometry(Part.LineSegment(V(2.7, 49.7, 0), V(3, 50.2, 0)), False)
sketch11.addGeometry(Part.ArcOfCircle(Part.Circle(V(3, 48.9, 0), V(0, 0, 1), 1.3), math.radians(0), math.radians(90)), False)
sketch11.addConstraint(Sketcher.Constraint("Tangent", 0, 2, 1, 2))
sketch11.addConstraint(Sketcher.Constraint("Tangent", 1, 1, 2, 1))
sketch11.addConstraint(Sketcher.Constraint("Tangent", 2, 2, 3, 2))
sketch11.addConstraint(Sketcher.Constraint("Tangent", 3, 1, 0, 1))
sketch11.addConstraint(Sketcher.Constraint("Tangent", 4, 2, 5, 2))
sketch11.addConstraint(Sketcher.Constraint("Tangent", 5, 1, 6, 1))
sketch11.addConstraint(Sketcher.Constraint("Tangent", 6, 2, 7, 2))
sketch11.addConstraint(Sketcher.Constraint("Tangent", 7, 1, 4, 1))
sketch11.addConstraint(Sketcher.Constraint("Tangent", 8, 2, 9, 2))
sketch11.addConstraint(Sketcher.Constraint("Coincident", 9, 1, 10, 1))
sketch11.addConstraint(Sketcher.Constraint("Coincident", 10, 2, 11, 1))
sketch11.addConstraint(Sketcher.Constraint("Coincident", 11, 2, 12, 1))
sketch11.addConstraint(Sketcher.Constraint("Coincident", 12, 2, 13, 2))
sketch11.addConstraint(Sketcher.Constraint("Tangent", 13, 1, 8, 1))
sketch11.addConstraint(Sketcher.Constraint("Vertical", 0))
sketch11.addConstraint(Sketcher.Constraint("Vertical", 2))
sketch11.addConstraint(Sketcher.Constraint("Vertical", 4))
sketch11.addConstraint(Sketcher.Constraint("Vertical", 6))
sketch11.addConstraint(Sketcher.Constraint("Vertical", 8))
sketch11.addConstraint(Sketcher.Constraint("Vertical", 11))
sketch11.addConstraint(Sketcher.Constraint("Equal", 3, 5))
sketch11.addConstraint(Sketcher.Constraint("Equal", 9, 13))
sketch11.addConstraint(Sketcher.Constraint("Vertical", 3, 3, 5, 3))
sketch11.addConstraint(Sketcher.Constraint("Vertical", 13, 3, 9, 1))
sketch11.addConstraint(Sketcher.Constraint("Vertical", 9, 1, 12, 2))
sketch11.addConstraint(Sketcher.Constraint("Equal", 2, 4))
sketch11.addConstraint(Sketcher.Constraint("Equal", 10, 12))
sketch11.addConstraint(Sketcher.Constraint("Radius", 1, 0.9))
sketch11.addConstraint(Sketcher.Constraint("Radius", 9, 1.3))
sketch11.addConstraint(Sketcher.Constraint("Angle", 10, Q("120 deg")))
sketch11.addConstraint(Sketcher.Constraint("DistanceY", 0, 2, 0, 1, 4.8))
sketch11.addConstraint(Sketcher.Constraint("DistanceX", -1, 1, 9, 3, 3.0))
sketch11.addConstraint(Sketcher.Constraint("DistanceY", 9, 3, 5, 3, 22.0))
sketch11.addConstraint(Sketcher.Constraint("DistanceY", 13, 3, 3, 3, 12.0))
sketch11.addConstraint(Sketcher.Constraint("Distance", 10, 0.6))
sketch11.addConstraint(Sketcher.Constraint("DistanceY", 8, 2, 8, 1, 7.35))
sketch11.addConstraint(Sketcher.Constraint("DistanceY", -1, 1, 1, 3, 56.1))
sketch11.addConstraint(Sketcher.Constraint("DistanceX", -1, 1, 1, 3, 5.35))
pocket9 = doc.addObject("PartDesign::Pocket", "Pocket008")
body.addObject(pocket9)
pocket9.Profile = sketch11
pocket9.Length = 2
pocket9.Reversed = True

doc.recompute()
